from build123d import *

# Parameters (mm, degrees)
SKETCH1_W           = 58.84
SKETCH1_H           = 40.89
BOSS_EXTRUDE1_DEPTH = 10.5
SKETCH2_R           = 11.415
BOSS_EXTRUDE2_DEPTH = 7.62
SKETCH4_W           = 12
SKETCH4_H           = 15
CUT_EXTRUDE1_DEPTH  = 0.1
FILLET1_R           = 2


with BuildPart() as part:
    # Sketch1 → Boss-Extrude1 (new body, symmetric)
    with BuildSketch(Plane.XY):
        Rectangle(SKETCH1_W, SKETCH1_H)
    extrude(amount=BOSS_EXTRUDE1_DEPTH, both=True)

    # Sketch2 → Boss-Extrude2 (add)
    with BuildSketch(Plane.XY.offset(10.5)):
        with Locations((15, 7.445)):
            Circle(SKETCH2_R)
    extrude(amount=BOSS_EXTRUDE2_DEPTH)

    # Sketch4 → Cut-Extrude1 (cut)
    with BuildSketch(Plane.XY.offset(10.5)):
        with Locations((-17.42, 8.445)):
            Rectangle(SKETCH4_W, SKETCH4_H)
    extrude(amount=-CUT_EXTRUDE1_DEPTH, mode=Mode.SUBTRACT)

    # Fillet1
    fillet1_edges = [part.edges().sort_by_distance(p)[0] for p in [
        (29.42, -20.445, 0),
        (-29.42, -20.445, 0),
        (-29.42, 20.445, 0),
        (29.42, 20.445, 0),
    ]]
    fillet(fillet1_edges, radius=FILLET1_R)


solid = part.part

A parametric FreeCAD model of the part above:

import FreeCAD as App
import Part
import Sketcher


def edges_at(feature, points):
    """Names of the edges that pass closest to the given points."""
    edges = feature.Shape.Edges
    near = lambda p: min(range(len(edges)), key=lambda i: edges[i].distToShape(Part.Vertex(*p))[0])
    return sorted({f"Edge{near(p) + 1}" for p in points})


def add_polygon(sketch, points):
    """Adds a closed chain of lines whose ends are joined by coincident constraints."""
    first, n = sketch.GeometryCount, len(points)
    for a, b in zip(points, points[1:] + points[:1]):
        sketch.addGeometry(Part.LineSegment(App.Vector(*a, 0), App.Vector(*b, 0)), False)
    for i in range(n):
        sketch.addConstraint(Sketcher.Constraint("Coincident", first + i, 2, first + (i + 1) % n, 1))

doc = App.newDocument("Part")
body = doc.addObject("PartDesign::Body", "Body")

# Sketch on XY plane
sketch1 = body.newObject("Sketcher::SketchObject", "Sketch")
sketch1.AttachmentSupport = (doc.getObject("XY_Plane"), [""])
sketch1.MapMode = "FlatFace"
add_polygon(sketch1, [(-29, 20), (-29, -20), (29, -20), (29, 20)])  # lines 0-3
sketch1.addConstraint(Sketcher.Constraint("Vertical", 0))
sketch1.addConstraint(Sketcher.Constraint("Horizontal", 1))
sketch1.addConstraint(Sketcher.Constraint("Vertical", 2))
sketch1.addConstraint(Sketcher.Constraint("Horizontal", 3))
sketch1.addConstraint(Sketcher.Constraint("Symmetric", 0, 2, 2, 2, -1, 1))
sketch1.addConstraint(Sketcher.Constraint("DistanceX", 1, 1, 1, 2, 58.84))
sketch1.addConstraint(Sketcher.Constraint("DistanceY", 0, 2, 0, 1, 40.89))
pad1 = body.newObject("PartDesign::Pad", "Pad")
pad1.Profile = sketch1
pad1.Length = 21
pad1.Midplane = True

# Sketch on XY plane
sketch2 = body.newObject("Sketcher::SketchObject", "Sketch001")
sketch2.AttachmentSupport = (doc.getObject("XY_Plane"), [""])
sketch2.MapMode = "FlatFace"
sketch2.AttachmentOffset = App.Placement(App.Vector(0, 0, 10.5), App.Rotation())
sketch2.addGeometry(Part.Circle(App.Vector(15, 7, 0), App.Vector(0, 0, 1), 11), False)
sketch2.addConstraint(Sketcher.Constraint("Diameter", 0, 22.83))
sketch2.addConstraint(Sketcher.Constraint("DistanceX", -1, 1, 0, 3, 15.0))
sketch2.addConstraint(Sketcher.Constraint("DistanceY", -1, 1, 0, 3, 7.445))
pad2 = body.newObject("PartDesign::Pad", "Pad001")
pad2.Profile = sketch2
pad2.Length = 7.62

# Sketch on XY plane
sketch3 = body.newObject("Sketcher::SketchObject", "Sketch002")
sketch3.AttachmentSupport = (doc.getObject("XY_Plane"), [""])
sketch3.MapMode = "FlatFace"
sketch3.AttachmentOffset = App.Placement(App.Vector(0, 0, 10.5), App.Rotation())
add_polygon(sketch3, [(-23, 16), (-23, 1), (-11, 1), (-11, 16)])  # lines 0-3
sketch3.addConstraint(Sketcher.Constraint("Vertical", 0))
sketch3.addConstraint(Sketcher.Constraint("Horizontal", 1))
sketch3.addConstraint(Sketcher.Constraint("Vertical", 2))
sketch3.addConstraint(Sketcher.Constraint("Horizontal", 3))
sketch3.addConstraint(Sketcher.Constraint("DistanceX", 1, 1, 1, 2, 12.0))
sketch3.addConstraint(Sketcher.Constraint("DistanceY", 0, 2, 0, 1, 15.0))
sketch3.addConstraint(Sketcher.Constraint("DistanceX", 0, 2, -1, 1, 23.42))
sketch3.addConstraint(Sketcher.Constraint("DistanceY", -1, 1, 0, 2, 0.945))
pocket1 = body.newObject("PartDesign::Pocket", "Pocket")
pocket1.Profile = sketch3
pocket1.Length = 0.1
doc.recompute()

fillet = body.newObject("PartDesign::Fillet", "Fillet")
fillet.Base = (pocket1, edges_at(pocket1, [
    (29.42, -20.445, 0),
    (-29.42, -20.445, 0),
    (-29.42, 20.445, 0),
    (29.42, 20.445, 0),
]))
fillet.Radius = 2

doc.recompute()
